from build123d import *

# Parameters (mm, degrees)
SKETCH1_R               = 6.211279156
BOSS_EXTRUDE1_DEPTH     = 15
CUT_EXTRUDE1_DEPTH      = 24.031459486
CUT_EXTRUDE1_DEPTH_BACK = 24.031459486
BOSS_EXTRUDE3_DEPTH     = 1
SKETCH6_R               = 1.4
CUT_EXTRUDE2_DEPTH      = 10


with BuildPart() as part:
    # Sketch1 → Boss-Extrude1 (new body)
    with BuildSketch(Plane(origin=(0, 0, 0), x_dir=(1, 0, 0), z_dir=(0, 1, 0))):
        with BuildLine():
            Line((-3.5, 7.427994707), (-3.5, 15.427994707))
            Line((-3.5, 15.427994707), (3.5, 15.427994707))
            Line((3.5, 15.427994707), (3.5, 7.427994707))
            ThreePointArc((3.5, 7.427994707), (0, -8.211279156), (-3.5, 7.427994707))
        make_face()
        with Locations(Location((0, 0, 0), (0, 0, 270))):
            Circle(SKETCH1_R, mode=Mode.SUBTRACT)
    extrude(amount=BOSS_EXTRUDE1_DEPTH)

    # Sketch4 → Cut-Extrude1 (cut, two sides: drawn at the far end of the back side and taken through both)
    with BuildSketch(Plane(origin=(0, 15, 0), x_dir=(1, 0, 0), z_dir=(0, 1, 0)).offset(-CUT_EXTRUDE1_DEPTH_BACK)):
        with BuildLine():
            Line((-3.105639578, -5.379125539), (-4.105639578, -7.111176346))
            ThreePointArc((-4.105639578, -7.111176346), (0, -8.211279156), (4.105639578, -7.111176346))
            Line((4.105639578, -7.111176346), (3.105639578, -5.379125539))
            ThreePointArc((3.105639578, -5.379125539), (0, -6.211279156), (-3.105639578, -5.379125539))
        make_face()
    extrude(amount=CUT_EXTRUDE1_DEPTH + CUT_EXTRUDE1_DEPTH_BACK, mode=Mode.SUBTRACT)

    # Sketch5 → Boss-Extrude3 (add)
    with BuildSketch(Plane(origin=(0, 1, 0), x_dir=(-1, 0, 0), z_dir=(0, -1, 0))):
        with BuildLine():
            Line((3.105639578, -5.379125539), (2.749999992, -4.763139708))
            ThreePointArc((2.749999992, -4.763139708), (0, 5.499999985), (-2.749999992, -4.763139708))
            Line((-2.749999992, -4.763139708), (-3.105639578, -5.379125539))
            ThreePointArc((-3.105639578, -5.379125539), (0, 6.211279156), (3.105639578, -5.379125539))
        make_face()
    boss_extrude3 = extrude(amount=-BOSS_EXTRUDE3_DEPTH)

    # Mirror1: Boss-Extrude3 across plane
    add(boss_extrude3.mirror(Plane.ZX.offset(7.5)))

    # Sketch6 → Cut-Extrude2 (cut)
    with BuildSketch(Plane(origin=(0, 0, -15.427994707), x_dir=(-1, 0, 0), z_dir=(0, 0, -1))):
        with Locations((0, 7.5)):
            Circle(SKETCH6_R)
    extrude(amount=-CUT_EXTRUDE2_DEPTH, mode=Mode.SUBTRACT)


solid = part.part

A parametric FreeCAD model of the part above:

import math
import FreeCAD as App
import Part
import Sketcher
Q = App.Units.Quantity

doc = App.newDocument("Part")
body = doc.addObject("PartDesign::Body", "Body")

sketch1 = body.newObject("Sketcher::SketchObject", "Sketch")
sketch1.AttachmentSupport = (doc.getObject("XZ_Plane"), [""])
sketch1.MapMode = "FlatFace"
sketch1.addGeometry(Part.LineSegment(App.Vector(-4, -15, 0), App.Vector(-4, -7, 0)), False)
sketch1.addGeometry(Part.ArcOfCircle(Part.Circle(App.Vector(0, 0, 0), App.Vector(0, 0, 1), 8), math.radians(-65), math.radians(245)), False)
sketch1.addGeometry(Part.LineSegment(App.Vector(4, -7, 0), App.Vector(4, -15, 0)), False)
sketch1.addGeometry(Part.LineSegment(App.Vector(4, -15, 0), App.Vector(-4, -15, 0)), False)
sketch1.addGeometry(Part.Circle(App.Vector(0, 0, 0), App.Vector(0, 0, 1), 6), False)
sketch1.addConstraint(Sketcher.Constraint("Coincident", 0, 2, 1, 2))
sketch1.addConstraint(Sketcher.Constraint("Coincident", 1, 1, 2, 1))
sketch1.addConstraint(Sketcher.Constraint("Coincident", 2, 2, 3, 1))
sketch1.addConstraint(Sketcher.Constraint("Coincident", 3, 2, 0, 1))
sketch1.addConstraint(Sketcher.Constraint("Vertical", 0))
sketch1.addConstraint(Sketcher.Constraint("Vertical", 2))
sketch1.addConstraint(Sketcher.Constraint("Horizontal", 3))
sketch1.addConstraint(Sketcher.Constraint("Coincident", 1, 3, -1, 1))
sketch1.addConstraint(Sketcher.Constraint("Coincident", 4, 3, -1, 1))
sketch1.addConstraint(Sketcher.Constraint("Horizontal", 0, 2, 1, 1))
sketch1.addConstraint(Sketcher.Constraint("DistanceX", 3, 2, 3, 1, 7.0))
sketch1.addConstraint(Sketcher.Constraint("DistanceY", 0, 1, 0, 2, 8.0))
sketch1.addConstraint(Sketcher.Constraint("Diameter", 4, 12.422558))
sketch1.addConstraint(Sketcher.Constraint("Radius", 1, 8.211279))
pad1 = body.newObject("PartDesign::Pad", "Pad")
pad1.Profile = sketch1
pad1.Length = 15
pad1.Reversed = True

sketch2 = body.newObject("Sketcher::SketchObject", "Sketch001")
sketch2.AttachmentSupport = (doc.getObject("XZ_Plane"), [""])
sketch2.MapMode = "FlatFace"
sketch2.AttachmentOffset = App.Placement(App.Vector(0, 0, -15), App.Rotation())
sketch2.addGeometry(Part.LineSegment(App.Vector(-3.1, 5.4, 0), App.Vector(-4.1, 7.1, 0)), False)
sketch2.addGeometry(Part.ArcOfCircle(Part.Circle(App.Vector(0, 0, 0), App.Vector(0, 0, 1), 8.2), math.radians(60), math.radians(120)), False)
sketch2.addGeometry(Part.LineSegment(App.Vector(4.1, 7.1, 0), App.Vector(3.1, 5.4, 0)), False)
sketch2.addGeometry(Part.ArcOfCircle(Part.Circle(App.Vector(0, 0, 0), App.Vector(0, 0, 1), 6.2), math.radians(60), math.radians(120)), False)
sketch2.addConstraint(Sketcher.Constraint("Coincident", 0, 2, 1, 2))
sketch2.addConstraint(Sketcher.Constraint("Coincident", 1, 1, 2, 1))
sketch2.addConstraint(Sketcher.Constraint("Coincident", 2, 2, 3, 1))
sketch2.addConstraint(Sketcher.Constraint("Coincident", 3, 2, 0, 1))
sketch2.addConstraint(Sketcher.Constraint("Coincident", 1, 3, -1, 1))
sketch2.addConstraint(Sketcher.Constraint("Coincident", 3, 3, -1, 1))
sketch2.addConstraint(Sketcher.Constraint("Horizontal", 0, 2, 1, 1))
sketch2.addConstraint(Sketcher.Constraint("Horizontal", 2, 2, 3, 2))
sketch2.addConstraint(Sketcher.Constraint("Angle", 0, Q("120 deg")))
sketch2.addConstraint(Sketcher.Constraint("Distance", 0, 2.0))
sketch2.addConstraint(Sketcher.Constraint("Radius", 1, 8.211279))
sketch2.addConstraint(Sketcher.Constraint("DistanceX", 0, 2, -1, 1, 4.10564))
pocket1 = body.newObject("PartDesign::Pocket", "Pocket")
pocket1.Profile = sketch2
pocket1.Type = "ThroughAll"
pocket1.Midplane = True

sketch3 = body.newObject("Sketcher::SketchObject", "Sketch002")
sketch3.AttachmentSupport = (doc.getObject("XZ_Plane"), [""])
sketch3.MapMode = "FlatFace"
sketch3.AttachmentOffset = App.Placement(App.Vector(0, 0, -1), App.Rotation())
sketch3.addGeometry(Part.LineSegment(App.Vector(-2.7, 4.8, 0), App.Vector(-3.1, 5.4, 0)), False)
sketch3.addGeometry(Part.ArcOfCircle(Part.Circle(App.Vector(0, 0, 0), App.Vector(0, 0, 1), 6.2), math.radians(120), math.radians(420)), False)
sketch3.addGeometry(Part.LineSegment(App.Vector(3.1, 5.4, 0), App.Vector(2.7, 4.8, 0)), False)
sketch3.addGeometry(Part.ArcOfCircle(Part.Circle(App.Vector(0, 0, 0), App.Vector(0, 0, 1), 5.5), math.radians(120), math.radians(420)), False)
sketch3.addConstraint(Sketcher.Constraint("Coincident", 0, 2, 1, 1))
sketch3.addConstraint(Sketcher.Constraint("Coincident", 1, 2, 2, 1))
sketch3.addConstraint(Sketcher.Constraint("Coincident", 2, 2, 3, 2))
sketch3.addConstraint(Sketcher.Constraint("Coincident", 3, 1, 0, 1))
sketch3.addConstraint(Sketcher.Constraint("Coincident", 1, 3, -1, 1))
sketch3.addConstraint(Sketcher.Constraint("Coincident", 3, 3, -1, 1))
sketch3.addConstraint(Sketcher.Constraint("Horizontal", 0, 2, 1, 2))
sketch3.addConstraint(Sketcher.Constraint("Horizontal", 2, 2, 3, 1))
sketch3.addConstraint(Sketcher.Constraint("Radius", 3, 5.5))
sketch3.addConstraint(Sketcher.Constraint("Angle", 0, Q("120 deg")))
sketch3.addConstraint(Sketcher.Constraint("DistanceX", 3, 1, 2, 2, 5.5))
sketch3.addConstraint(Sketcher.Constraint("Radius", 1, 6.211279))
pad2 = body.newObject("PartDesign::Pad", "Pad001")
pad2.Profile = sketch3
pad2.Length = 1
pad2.Reversed = True
doc.recompute()

datumplane = body.newObject("PartDesign::Plane", "DatumPlane")
datumplane.AttachmentSupport = (doc.getObject("XZ_Plane"), [""])
datumplane.MapMode = "FlatFace"
datumplane.AttachmentOffset = App.Placement(App.Vector(0, 0, -7.5), App.Rotation())
mirrored = body.newObject("PartDesign::Mirrored", "Mirrored")
mirrored.Originals = [pad2]
mirrored.MirrorPlane = (datumplane, [""])
body.Tip = mirrored

sketch4 = body.newObject("Sketcher::SketchObject", "Sketch003")
sketch4.AttachmentSupport = (doc.getObject("XY_Plane"), [""])
sketch4.MapMode = "FlatFace"
sketch4.AttachmentOffset = App.Placement(App.Vector(0, 0, -15.427995), App.Rotation())
sketch4.addGeometry(Part.Circle(App.Vector(0, 7.5, 0), App.Vector(0, 0, 1), 1.4), False)
sketch4.addConstraint(Sketcher.Constraint("PointOnObject", 0, 3, -2))
sketch4.addConstraint(Sketcher.Constraint("Diameter", 0, 2.8))
sketch4.addConstraint(Sketcher.Constraint("DistanceY", -1, 1, 0, 3, 7.5))
pocket2 = body.newObject("PartDesign::Pocket", "Pocket001")
pocket2.Profile = sketch4
pocket2.Length = 10
pocket2.Reversed = True

doc.recompute()
